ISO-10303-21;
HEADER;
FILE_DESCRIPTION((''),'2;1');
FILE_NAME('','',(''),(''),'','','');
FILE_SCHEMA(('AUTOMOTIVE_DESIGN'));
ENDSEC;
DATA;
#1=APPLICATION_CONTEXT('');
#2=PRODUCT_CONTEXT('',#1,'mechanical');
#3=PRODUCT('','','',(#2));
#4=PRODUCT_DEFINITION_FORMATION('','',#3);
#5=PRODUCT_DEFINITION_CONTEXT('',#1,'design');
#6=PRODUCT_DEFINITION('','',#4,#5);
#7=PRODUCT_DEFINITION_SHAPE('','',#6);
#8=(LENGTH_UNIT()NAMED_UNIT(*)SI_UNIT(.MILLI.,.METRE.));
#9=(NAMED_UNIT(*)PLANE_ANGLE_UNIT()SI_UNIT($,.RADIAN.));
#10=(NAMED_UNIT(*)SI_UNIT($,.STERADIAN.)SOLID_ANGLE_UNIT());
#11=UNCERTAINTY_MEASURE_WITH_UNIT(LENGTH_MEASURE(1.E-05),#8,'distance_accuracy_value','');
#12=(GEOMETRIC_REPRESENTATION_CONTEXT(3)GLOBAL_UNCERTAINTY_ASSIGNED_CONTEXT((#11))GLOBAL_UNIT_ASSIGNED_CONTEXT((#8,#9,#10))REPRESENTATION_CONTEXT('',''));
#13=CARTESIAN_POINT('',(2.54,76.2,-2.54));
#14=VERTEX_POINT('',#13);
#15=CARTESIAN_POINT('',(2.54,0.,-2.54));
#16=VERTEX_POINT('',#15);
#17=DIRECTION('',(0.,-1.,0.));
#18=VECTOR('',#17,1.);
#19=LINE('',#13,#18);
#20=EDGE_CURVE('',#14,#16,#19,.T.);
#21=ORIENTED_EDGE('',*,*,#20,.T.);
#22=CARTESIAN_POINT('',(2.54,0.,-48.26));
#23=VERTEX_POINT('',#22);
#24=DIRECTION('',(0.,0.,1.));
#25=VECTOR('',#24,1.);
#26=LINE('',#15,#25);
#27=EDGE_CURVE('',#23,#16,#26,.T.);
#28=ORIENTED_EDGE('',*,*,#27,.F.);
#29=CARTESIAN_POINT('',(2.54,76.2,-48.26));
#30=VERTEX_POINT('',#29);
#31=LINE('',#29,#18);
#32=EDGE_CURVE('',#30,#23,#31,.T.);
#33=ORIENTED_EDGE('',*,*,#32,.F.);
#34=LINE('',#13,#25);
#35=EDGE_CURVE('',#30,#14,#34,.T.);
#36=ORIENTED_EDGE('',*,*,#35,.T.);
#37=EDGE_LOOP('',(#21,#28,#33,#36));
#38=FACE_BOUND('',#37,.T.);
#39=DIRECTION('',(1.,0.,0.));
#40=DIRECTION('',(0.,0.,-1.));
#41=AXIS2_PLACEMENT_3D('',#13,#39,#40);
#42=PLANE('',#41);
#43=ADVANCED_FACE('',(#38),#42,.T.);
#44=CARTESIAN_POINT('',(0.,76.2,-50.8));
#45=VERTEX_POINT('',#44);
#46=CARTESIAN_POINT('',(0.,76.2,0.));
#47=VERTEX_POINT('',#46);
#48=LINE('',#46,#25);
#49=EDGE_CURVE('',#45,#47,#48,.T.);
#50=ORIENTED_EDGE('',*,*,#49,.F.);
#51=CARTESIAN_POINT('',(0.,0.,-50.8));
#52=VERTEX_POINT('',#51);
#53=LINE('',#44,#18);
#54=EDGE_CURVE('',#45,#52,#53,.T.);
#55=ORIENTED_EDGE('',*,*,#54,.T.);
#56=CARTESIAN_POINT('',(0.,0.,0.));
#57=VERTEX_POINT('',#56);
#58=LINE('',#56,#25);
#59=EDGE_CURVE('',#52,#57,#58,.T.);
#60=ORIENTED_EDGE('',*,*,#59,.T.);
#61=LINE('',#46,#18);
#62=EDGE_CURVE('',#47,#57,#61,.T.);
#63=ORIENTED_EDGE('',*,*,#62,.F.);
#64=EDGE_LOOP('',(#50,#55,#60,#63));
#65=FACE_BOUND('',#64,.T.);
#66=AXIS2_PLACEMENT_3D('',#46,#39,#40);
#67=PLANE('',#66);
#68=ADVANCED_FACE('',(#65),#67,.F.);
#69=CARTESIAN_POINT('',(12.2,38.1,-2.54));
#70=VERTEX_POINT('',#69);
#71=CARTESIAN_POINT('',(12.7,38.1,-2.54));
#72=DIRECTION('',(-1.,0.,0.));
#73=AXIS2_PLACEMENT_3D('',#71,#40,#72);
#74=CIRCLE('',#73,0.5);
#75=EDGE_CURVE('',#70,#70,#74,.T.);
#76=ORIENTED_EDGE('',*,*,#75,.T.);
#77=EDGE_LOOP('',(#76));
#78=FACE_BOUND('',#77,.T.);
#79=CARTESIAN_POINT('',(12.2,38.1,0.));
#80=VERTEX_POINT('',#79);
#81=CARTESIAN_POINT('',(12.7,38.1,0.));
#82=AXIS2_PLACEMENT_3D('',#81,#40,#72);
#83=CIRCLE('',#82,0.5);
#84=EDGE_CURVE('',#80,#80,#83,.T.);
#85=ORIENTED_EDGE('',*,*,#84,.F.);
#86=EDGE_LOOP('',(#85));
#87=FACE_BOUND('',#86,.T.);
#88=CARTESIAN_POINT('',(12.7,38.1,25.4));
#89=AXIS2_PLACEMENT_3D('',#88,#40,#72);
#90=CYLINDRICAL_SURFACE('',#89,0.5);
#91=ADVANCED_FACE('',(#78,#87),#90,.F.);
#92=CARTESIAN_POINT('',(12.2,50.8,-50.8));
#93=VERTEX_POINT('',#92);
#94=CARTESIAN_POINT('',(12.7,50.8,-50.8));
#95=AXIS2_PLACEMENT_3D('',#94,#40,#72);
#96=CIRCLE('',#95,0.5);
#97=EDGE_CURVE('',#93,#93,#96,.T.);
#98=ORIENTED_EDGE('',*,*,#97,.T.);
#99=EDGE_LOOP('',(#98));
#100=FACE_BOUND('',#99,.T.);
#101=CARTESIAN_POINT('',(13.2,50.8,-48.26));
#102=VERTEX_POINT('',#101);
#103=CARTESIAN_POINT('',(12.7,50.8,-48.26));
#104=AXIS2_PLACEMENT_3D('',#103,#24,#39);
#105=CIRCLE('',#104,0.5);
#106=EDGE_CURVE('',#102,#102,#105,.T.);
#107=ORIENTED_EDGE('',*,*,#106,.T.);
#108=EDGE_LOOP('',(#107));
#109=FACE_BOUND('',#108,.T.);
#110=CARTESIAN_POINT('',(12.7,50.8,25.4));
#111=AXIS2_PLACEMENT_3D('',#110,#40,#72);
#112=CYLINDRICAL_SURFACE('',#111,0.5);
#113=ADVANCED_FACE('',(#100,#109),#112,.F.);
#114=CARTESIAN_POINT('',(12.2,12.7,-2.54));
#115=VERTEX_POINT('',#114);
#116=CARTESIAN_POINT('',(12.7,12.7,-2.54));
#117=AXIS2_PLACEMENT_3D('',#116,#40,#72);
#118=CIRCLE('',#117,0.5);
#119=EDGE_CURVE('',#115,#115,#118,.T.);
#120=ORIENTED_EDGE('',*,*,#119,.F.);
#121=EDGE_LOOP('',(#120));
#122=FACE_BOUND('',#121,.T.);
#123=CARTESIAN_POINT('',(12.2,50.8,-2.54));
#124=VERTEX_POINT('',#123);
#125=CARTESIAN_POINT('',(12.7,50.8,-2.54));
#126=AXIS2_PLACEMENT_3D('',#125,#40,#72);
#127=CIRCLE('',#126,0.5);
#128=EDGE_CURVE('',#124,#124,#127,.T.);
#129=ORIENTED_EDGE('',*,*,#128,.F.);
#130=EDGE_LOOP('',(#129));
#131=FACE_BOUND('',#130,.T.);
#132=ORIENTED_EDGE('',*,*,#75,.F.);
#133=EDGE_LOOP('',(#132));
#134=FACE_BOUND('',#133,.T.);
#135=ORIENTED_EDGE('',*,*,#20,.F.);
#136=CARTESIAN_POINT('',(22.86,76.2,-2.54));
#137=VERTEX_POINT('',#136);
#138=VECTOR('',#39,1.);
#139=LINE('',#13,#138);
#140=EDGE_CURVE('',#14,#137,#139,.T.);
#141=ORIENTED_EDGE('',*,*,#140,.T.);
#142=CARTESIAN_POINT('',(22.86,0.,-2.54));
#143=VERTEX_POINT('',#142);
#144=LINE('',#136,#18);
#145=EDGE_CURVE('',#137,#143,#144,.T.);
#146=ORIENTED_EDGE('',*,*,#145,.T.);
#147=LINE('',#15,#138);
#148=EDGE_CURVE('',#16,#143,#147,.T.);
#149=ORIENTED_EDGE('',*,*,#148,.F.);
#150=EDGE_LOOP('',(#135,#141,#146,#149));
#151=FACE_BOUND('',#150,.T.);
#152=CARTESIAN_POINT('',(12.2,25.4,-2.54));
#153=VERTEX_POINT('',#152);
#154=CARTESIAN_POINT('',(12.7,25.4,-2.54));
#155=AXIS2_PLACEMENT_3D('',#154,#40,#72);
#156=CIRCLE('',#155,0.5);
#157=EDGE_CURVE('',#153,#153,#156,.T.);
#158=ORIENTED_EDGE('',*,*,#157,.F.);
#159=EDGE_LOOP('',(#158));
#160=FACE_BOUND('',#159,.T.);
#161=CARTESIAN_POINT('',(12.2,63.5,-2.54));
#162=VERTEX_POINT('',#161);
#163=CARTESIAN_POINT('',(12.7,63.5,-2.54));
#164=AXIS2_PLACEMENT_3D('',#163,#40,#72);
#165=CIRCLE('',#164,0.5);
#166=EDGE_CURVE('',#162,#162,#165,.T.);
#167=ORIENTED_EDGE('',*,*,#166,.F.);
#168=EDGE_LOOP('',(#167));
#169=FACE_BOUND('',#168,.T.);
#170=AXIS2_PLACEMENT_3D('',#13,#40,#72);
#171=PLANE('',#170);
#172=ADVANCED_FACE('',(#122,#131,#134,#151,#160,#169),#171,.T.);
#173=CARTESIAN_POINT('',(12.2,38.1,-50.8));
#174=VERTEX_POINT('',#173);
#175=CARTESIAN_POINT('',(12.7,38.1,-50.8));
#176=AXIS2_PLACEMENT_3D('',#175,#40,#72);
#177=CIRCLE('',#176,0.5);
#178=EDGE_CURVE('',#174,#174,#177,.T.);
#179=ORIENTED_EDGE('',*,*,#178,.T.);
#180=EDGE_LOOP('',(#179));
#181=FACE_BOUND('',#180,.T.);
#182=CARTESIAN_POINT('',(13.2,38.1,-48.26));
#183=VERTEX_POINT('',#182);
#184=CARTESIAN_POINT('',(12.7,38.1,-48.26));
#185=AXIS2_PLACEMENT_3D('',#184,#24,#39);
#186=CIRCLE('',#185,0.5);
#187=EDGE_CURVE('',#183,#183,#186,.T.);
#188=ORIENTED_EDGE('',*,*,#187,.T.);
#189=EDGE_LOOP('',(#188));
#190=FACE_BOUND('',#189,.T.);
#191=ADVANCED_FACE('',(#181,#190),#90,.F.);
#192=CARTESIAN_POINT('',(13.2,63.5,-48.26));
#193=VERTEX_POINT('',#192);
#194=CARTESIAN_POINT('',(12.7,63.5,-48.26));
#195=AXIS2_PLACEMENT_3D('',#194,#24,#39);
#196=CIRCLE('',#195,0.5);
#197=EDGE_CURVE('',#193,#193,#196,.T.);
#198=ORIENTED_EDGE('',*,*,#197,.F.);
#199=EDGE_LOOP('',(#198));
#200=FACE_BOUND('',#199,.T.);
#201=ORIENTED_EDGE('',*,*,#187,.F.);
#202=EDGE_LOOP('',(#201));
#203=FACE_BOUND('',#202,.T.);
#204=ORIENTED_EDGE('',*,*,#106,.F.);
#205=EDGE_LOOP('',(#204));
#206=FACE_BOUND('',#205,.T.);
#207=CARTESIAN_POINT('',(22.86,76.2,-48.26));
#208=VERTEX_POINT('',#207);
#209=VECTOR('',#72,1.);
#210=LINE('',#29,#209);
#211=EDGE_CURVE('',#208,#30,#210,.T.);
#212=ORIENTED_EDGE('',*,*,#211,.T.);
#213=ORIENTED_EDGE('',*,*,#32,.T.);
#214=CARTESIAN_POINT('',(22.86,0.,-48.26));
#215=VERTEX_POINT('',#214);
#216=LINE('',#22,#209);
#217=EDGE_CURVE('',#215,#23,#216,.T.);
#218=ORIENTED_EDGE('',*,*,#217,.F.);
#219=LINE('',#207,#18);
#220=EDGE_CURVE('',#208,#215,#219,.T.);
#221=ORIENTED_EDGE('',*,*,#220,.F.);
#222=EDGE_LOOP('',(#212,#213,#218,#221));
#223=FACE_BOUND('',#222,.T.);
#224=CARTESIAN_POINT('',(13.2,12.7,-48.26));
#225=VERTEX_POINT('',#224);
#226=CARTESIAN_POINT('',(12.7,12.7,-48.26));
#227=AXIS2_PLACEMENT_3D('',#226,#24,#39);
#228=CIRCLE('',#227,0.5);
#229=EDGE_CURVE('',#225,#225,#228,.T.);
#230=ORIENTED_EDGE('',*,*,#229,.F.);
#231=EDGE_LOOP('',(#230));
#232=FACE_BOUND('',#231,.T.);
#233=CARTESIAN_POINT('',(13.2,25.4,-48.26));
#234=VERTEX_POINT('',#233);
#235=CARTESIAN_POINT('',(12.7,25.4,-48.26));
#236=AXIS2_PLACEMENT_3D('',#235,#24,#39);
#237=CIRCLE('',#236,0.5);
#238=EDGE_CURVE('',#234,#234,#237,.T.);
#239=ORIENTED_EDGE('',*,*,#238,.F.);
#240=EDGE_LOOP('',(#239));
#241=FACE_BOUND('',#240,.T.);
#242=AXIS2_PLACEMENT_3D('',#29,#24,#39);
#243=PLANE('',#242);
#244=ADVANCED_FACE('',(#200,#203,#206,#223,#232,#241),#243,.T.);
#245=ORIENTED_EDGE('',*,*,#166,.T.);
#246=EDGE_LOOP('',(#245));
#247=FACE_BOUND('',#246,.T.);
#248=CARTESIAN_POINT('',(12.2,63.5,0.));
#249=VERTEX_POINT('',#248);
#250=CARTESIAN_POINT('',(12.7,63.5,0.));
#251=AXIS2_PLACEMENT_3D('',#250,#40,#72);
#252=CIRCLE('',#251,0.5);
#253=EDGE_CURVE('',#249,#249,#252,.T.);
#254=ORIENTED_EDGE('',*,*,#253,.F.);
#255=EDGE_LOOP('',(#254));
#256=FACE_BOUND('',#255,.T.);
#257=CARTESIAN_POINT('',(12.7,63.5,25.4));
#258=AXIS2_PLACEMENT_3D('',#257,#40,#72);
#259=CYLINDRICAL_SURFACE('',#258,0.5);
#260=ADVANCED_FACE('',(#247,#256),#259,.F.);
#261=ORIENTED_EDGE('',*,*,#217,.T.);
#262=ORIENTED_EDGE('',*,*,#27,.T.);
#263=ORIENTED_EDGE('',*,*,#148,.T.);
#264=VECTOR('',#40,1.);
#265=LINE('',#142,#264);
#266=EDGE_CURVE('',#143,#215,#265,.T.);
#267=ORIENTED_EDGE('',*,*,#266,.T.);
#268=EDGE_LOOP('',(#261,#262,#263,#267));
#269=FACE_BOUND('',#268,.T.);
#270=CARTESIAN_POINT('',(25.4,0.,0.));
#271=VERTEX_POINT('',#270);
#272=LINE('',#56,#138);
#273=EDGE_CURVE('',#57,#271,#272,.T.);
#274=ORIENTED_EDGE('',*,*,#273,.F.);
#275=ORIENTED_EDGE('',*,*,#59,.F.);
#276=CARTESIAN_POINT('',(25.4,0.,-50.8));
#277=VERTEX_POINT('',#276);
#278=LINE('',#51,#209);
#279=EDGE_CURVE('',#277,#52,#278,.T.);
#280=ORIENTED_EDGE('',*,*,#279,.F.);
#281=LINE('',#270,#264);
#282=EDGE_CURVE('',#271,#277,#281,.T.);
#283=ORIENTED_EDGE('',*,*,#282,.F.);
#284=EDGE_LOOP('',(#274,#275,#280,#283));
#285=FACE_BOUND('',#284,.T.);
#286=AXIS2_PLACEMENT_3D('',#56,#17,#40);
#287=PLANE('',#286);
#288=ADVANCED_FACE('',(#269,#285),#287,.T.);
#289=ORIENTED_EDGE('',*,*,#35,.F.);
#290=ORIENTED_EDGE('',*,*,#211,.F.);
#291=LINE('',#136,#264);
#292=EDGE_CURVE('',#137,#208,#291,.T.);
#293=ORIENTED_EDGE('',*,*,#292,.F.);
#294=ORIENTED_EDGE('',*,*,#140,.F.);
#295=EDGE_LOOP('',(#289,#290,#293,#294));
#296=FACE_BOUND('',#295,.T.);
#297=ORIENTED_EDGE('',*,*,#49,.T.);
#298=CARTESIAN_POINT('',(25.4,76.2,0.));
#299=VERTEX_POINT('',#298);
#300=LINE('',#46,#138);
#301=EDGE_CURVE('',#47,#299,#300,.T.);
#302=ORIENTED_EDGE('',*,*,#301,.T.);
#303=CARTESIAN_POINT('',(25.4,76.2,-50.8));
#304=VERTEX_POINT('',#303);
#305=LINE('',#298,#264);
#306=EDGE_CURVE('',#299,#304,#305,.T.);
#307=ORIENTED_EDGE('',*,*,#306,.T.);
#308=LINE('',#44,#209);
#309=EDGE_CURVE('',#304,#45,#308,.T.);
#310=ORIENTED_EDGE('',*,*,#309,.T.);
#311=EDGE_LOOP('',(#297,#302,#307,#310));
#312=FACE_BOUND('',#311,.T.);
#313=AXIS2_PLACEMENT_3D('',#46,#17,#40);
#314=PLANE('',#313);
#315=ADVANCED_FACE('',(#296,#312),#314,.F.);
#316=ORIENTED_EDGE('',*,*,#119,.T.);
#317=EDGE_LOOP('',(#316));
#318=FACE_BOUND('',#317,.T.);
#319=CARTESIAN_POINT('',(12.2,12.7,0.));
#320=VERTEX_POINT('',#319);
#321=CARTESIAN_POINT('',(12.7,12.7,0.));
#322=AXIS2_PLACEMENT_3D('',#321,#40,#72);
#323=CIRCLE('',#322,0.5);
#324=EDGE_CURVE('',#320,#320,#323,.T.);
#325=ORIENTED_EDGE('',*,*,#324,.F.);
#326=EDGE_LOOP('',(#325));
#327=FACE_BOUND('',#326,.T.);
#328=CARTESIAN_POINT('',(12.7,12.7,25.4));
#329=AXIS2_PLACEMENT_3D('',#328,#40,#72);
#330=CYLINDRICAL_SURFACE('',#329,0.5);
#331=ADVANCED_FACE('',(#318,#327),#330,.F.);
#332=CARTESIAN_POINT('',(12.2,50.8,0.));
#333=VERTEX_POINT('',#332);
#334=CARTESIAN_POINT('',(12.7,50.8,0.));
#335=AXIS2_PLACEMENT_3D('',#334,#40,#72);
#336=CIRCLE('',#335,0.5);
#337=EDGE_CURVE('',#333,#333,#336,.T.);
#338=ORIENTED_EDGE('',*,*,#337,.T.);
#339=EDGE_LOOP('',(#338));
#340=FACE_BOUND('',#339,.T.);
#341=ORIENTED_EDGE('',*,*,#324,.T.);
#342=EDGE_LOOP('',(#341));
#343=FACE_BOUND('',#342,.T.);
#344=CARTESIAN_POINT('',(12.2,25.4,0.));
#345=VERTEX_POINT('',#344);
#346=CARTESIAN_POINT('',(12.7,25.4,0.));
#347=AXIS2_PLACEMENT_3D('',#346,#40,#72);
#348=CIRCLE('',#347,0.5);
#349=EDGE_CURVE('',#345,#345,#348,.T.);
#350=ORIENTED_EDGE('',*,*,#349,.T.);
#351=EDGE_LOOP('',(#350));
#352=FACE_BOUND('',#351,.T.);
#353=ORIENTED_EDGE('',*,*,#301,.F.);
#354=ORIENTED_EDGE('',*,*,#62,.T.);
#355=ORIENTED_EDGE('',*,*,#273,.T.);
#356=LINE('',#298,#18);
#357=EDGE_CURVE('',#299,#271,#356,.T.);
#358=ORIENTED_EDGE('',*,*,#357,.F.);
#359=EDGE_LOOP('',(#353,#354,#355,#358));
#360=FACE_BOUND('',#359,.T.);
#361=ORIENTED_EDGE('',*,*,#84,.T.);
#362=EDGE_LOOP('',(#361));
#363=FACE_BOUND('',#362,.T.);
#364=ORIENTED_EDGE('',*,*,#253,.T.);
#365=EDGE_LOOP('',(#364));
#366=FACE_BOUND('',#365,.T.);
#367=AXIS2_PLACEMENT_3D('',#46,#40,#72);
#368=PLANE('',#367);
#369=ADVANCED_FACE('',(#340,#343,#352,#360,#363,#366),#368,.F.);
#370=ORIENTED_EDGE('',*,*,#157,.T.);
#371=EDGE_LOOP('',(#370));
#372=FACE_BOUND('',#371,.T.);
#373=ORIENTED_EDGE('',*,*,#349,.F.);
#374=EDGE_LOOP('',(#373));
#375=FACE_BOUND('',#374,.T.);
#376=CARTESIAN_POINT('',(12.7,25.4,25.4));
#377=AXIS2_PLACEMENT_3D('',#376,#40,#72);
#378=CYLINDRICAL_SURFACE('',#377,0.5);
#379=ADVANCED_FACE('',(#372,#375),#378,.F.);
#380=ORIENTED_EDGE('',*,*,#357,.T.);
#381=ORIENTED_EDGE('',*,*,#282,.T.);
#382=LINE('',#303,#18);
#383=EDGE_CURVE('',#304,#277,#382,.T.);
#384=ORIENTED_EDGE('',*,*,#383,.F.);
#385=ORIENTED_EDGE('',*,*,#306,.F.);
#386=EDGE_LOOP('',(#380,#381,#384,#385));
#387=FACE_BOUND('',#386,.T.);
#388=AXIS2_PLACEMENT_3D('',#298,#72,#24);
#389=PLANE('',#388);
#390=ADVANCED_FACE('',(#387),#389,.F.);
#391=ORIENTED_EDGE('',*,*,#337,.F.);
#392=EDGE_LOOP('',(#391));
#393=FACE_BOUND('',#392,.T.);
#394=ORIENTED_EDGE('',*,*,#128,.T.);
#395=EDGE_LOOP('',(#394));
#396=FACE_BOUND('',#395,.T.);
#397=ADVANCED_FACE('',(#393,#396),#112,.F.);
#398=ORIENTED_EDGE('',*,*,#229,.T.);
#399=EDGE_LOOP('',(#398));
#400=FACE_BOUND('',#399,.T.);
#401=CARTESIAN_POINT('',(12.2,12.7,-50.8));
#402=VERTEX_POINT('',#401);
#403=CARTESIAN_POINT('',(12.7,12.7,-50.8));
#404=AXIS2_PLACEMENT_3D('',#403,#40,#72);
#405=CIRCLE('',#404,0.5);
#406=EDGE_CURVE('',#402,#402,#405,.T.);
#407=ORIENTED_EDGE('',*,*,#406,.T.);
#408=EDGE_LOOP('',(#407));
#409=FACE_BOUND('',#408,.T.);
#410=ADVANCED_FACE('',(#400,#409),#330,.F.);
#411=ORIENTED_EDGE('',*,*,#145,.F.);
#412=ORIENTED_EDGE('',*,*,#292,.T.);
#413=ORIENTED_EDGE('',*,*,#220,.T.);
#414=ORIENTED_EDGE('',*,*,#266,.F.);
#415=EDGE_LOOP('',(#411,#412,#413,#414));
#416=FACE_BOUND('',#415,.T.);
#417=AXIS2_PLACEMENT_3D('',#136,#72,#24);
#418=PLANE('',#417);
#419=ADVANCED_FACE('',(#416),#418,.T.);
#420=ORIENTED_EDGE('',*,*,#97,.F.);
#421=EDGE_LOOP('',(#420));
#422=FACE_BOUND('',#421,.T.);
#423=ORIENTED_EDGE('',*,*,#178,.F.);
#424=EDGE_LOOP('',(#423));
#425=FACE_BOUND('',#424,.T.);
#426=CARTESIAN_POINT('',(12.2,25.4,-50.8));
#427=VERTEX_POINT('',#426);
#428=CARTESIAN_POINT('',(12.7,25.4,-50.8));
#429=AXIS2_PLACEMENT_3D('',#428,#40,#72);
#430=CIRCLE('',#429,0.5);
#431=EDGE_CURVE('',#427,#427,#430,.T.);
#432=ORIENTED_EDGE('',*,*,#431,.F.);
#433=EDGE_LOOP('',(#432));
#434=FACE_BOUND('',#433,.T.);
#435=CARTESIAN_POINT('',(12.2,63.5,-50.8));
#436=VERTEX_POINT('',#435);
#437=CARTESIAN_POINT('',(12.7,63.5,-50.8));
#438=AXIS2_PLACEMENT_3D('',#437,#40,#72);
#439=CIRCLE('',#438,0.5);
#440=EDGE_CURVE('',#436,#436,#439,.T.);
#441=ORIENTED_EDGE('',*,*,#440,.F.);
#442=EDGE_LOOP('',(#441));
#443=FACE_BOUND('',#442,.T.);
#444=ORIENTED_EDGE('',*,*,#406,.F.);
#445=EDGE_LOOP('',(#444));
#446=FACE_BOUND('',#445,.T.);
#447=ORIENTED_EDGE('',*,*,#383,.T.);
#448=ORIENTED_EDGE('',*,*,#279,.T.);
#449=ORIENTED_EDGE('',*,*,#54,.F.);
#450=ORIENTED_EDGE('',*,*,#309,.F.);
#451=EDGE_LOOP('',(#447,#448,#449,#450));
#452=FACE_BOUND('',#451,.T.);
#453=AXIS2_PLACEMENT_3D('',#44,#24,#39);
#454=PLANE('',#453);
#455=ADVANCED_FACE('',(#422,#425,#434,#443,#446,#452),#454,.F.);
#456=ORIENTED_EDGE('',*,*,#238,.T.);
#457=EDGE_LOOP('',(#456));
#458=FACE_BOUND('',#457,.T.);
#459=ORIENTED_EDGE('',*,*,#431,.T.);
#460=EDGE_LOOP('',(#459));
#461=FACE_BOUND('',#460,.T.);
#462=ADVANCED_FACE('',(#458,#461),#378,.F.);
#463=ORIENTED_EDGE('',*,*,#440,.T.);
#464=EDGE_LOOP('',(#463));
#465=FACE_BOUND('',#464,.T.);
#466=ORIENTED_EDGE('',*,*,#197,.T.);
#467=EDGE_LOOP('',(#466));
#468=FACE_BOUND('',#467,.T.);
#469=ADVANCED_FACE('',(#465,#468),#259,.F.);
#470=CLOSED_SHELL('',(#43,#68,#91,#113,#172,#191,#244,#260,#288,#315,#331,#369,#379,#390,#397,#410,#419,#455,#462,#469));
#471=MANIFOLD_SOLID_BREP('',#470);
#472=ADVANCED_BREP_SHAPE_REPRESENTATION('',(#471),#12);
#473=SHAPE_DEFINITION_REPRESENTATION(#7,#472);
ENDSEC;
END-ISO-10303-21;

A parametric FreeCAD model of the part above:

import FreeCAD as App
import Part
import Sketcher
from FreeCAD import Vector
Q = App.Units.Quantity


def add_polygon(sketch, points):
    """Adds a closed chain of lines whose ends are joined by coincident constraints."""
    first, n = sketch.GeometryCount, len(points)
    for a, b in zip(points, points[1:] + points[:1]):
        sketch.addGeometry(Part.LineSegment(App.Vector(*a, 0), App.Vector(*b, 0)), False)
    for i in range(n):
        sketch.addConstraint(Sketcher.Constraint("Coincident", first + i, 2, first + (i + 1) % n, 1))

doc = App.newDocument("Part")
body = doc.addObject("PartDesign::Body", "Body")

sketch1 = body.newObject("Sketcher::SketchObject", "Sketch")
sketch1.AttachmentSupport = (doc.getObject("XZ_Plane"), [""])
sketch1.MapMode = "FlatFace"
add_polygon(sketch1, [(0, -51), (0, 0), (25, 0), (25, -51)])
add_polygon(sketch1, [(23, -3), (3, -3), (3, -48), (23, -48)])
sketch1.addConstraint(Sketcher.Constraint("Vertical", 0))
sketch1.addConstraint(Sketcher.Constraint("Horizontal", 1))
sketch1.addConstraint(Sketcher.Constraint("Vertical", 2))
sketch1.addConstraint(Sketcher.Constraint("Horizontal", 3))
sketch1.addConstraint(Sketcher.Constraint("Horizontal", 4))
sketch1.addConstraint(Sketcher.Constraint("Vertical", 5))
sketch1.addConstraint(Sketcher.Constraint("Horizontal", 6))
sketch1.addConstraint(Sketcher.Constraint("Vertical", 7))
sketch1.addConstraint(Sketcher.Constraint("Coincident", 0, 2, -1, 1))
sketch1.addConstraint(Sketcher.Constraint("DistanceX", 1, 1, 1, 2, Q("1 in")))
sketch1.addConstraint(Sketcher.Constraint("DistanceY", 0, 1, 0, 2, Q("2 in")))
sketch1.addConstraint(Sketcher.Constraint("DistanceX", 4, 2, 4, 1, Q("0.8 in")))
sketch1.addConstraint(Sketcher.Constraint("DistanceY", 5, 2, 5, 1, Q("1.8 in")))
sketch1.addConstraint(Sketcher.Constraint("DistanceX", -1, 1, 4, 2, Q("0.1 in")))
sketch1.addConstraint(Sketcher.Constraint("DistanceY", 4, 2, -1, 1, Q("0.1 in")))
pad1 = body.newObject("PartDesign::Pad", "Pad")
pad1.Profile = sketch1
pad1.Length = Q("3 in")
pad1.Reversed = True

sketch2 = body.newObject("Sketcher::SketchObject", "Sketch001")
sketch2.AttachmentSupport = (doc.getObject("XY_Plane"), [""])
sketch2.MapMode = "FlatFace"
sketch2.AttachmentOffset = App.Placement(Vector(0, 0, -2 * 25.4), App.Rotation())
sketch2.addGeometry(Part.Circle(Vector(12.7, 12.7, 0), Vector(0, 0, 1), 0.5), False)
sketch2.addGeometry(Part.Circle(Vector(12.7, 25.4, 0), Vector(0, 0, 1), 0.5), False)
sketch2.addGeometry(Part.Circle(Vector(12.7, 38.1, 0), Vector(0, 0, 1), 0.5), False)
sketch2.addGeometry(Part.Circle(Vector(12.7, 50.8, 0), Vector(0, 0, 1), 0.5), False)
sketch2.addGeometry(Part.Circle(Vector(12.7, 63.5, 0), Vector(0, 0, 1), 0.5), False)
sketch2.addConstraint(Sketcher.Constraint("Equal", 0, 1))
sketch2.addConstraint(Sketcher.Constraint("Equal", 1, 2))
sketch2.addConstraint(Sketcher.Constraint("Equal", 2, 3))
sketch2.addConstraint(Sketcher.Constraint("Equal", 3, 4))
sketch2.addConstraint(Sketcher.Constraint("Vertical", 0, 3, 1, 3))
sketch2.addConstraint(Sketcher.Constraint("Vertical", 1, 3, 2, 3))
sketch2.addConstraint(Sketcher.Constraint("Vertical", 2, 3, 3, 3))
sketch2.addConstraint(Sketcher.Constraint("Vertical", 3, 3, 4, 3))
sketch2.addConstraint(Sketcher.Constraint("DistanceY", -1, 1, 1, 3, Q("1 in")))
sketch2.addConstraint(Sketcher.Constraint("DistanceY", -1, 1, 3, 3, Q("2 in")))
sketch2.addConstraint(Sketcher.Constraint("DistanceY", 0, 3, 2, 3, Q("1 in")))
sketch2.addConstraint(Sketcher.Constraint("DistanceY", 2, 3, 4, 3, Q("1 in")))
sketch2.addConstraint(Sketcher.Constraint("DistanceX", -1, 1, 0, 3, Q("0.5 in")))
sketch2.addConstraint(Sketcher.Constraint("DistanceY", -1, 1, 0, 3, Q("0.5 in")))
sketch2.addConstraint(Sketcher.Constraint("Diameter", 0, 1.0))
pocket1 = body.newObject("PartDesign::Pocket", "Pocket")
pocket1.Profile = sketch2
pocket1.Length = Q("3 in")
pocket1.Reversed = True

doc.recompute()
